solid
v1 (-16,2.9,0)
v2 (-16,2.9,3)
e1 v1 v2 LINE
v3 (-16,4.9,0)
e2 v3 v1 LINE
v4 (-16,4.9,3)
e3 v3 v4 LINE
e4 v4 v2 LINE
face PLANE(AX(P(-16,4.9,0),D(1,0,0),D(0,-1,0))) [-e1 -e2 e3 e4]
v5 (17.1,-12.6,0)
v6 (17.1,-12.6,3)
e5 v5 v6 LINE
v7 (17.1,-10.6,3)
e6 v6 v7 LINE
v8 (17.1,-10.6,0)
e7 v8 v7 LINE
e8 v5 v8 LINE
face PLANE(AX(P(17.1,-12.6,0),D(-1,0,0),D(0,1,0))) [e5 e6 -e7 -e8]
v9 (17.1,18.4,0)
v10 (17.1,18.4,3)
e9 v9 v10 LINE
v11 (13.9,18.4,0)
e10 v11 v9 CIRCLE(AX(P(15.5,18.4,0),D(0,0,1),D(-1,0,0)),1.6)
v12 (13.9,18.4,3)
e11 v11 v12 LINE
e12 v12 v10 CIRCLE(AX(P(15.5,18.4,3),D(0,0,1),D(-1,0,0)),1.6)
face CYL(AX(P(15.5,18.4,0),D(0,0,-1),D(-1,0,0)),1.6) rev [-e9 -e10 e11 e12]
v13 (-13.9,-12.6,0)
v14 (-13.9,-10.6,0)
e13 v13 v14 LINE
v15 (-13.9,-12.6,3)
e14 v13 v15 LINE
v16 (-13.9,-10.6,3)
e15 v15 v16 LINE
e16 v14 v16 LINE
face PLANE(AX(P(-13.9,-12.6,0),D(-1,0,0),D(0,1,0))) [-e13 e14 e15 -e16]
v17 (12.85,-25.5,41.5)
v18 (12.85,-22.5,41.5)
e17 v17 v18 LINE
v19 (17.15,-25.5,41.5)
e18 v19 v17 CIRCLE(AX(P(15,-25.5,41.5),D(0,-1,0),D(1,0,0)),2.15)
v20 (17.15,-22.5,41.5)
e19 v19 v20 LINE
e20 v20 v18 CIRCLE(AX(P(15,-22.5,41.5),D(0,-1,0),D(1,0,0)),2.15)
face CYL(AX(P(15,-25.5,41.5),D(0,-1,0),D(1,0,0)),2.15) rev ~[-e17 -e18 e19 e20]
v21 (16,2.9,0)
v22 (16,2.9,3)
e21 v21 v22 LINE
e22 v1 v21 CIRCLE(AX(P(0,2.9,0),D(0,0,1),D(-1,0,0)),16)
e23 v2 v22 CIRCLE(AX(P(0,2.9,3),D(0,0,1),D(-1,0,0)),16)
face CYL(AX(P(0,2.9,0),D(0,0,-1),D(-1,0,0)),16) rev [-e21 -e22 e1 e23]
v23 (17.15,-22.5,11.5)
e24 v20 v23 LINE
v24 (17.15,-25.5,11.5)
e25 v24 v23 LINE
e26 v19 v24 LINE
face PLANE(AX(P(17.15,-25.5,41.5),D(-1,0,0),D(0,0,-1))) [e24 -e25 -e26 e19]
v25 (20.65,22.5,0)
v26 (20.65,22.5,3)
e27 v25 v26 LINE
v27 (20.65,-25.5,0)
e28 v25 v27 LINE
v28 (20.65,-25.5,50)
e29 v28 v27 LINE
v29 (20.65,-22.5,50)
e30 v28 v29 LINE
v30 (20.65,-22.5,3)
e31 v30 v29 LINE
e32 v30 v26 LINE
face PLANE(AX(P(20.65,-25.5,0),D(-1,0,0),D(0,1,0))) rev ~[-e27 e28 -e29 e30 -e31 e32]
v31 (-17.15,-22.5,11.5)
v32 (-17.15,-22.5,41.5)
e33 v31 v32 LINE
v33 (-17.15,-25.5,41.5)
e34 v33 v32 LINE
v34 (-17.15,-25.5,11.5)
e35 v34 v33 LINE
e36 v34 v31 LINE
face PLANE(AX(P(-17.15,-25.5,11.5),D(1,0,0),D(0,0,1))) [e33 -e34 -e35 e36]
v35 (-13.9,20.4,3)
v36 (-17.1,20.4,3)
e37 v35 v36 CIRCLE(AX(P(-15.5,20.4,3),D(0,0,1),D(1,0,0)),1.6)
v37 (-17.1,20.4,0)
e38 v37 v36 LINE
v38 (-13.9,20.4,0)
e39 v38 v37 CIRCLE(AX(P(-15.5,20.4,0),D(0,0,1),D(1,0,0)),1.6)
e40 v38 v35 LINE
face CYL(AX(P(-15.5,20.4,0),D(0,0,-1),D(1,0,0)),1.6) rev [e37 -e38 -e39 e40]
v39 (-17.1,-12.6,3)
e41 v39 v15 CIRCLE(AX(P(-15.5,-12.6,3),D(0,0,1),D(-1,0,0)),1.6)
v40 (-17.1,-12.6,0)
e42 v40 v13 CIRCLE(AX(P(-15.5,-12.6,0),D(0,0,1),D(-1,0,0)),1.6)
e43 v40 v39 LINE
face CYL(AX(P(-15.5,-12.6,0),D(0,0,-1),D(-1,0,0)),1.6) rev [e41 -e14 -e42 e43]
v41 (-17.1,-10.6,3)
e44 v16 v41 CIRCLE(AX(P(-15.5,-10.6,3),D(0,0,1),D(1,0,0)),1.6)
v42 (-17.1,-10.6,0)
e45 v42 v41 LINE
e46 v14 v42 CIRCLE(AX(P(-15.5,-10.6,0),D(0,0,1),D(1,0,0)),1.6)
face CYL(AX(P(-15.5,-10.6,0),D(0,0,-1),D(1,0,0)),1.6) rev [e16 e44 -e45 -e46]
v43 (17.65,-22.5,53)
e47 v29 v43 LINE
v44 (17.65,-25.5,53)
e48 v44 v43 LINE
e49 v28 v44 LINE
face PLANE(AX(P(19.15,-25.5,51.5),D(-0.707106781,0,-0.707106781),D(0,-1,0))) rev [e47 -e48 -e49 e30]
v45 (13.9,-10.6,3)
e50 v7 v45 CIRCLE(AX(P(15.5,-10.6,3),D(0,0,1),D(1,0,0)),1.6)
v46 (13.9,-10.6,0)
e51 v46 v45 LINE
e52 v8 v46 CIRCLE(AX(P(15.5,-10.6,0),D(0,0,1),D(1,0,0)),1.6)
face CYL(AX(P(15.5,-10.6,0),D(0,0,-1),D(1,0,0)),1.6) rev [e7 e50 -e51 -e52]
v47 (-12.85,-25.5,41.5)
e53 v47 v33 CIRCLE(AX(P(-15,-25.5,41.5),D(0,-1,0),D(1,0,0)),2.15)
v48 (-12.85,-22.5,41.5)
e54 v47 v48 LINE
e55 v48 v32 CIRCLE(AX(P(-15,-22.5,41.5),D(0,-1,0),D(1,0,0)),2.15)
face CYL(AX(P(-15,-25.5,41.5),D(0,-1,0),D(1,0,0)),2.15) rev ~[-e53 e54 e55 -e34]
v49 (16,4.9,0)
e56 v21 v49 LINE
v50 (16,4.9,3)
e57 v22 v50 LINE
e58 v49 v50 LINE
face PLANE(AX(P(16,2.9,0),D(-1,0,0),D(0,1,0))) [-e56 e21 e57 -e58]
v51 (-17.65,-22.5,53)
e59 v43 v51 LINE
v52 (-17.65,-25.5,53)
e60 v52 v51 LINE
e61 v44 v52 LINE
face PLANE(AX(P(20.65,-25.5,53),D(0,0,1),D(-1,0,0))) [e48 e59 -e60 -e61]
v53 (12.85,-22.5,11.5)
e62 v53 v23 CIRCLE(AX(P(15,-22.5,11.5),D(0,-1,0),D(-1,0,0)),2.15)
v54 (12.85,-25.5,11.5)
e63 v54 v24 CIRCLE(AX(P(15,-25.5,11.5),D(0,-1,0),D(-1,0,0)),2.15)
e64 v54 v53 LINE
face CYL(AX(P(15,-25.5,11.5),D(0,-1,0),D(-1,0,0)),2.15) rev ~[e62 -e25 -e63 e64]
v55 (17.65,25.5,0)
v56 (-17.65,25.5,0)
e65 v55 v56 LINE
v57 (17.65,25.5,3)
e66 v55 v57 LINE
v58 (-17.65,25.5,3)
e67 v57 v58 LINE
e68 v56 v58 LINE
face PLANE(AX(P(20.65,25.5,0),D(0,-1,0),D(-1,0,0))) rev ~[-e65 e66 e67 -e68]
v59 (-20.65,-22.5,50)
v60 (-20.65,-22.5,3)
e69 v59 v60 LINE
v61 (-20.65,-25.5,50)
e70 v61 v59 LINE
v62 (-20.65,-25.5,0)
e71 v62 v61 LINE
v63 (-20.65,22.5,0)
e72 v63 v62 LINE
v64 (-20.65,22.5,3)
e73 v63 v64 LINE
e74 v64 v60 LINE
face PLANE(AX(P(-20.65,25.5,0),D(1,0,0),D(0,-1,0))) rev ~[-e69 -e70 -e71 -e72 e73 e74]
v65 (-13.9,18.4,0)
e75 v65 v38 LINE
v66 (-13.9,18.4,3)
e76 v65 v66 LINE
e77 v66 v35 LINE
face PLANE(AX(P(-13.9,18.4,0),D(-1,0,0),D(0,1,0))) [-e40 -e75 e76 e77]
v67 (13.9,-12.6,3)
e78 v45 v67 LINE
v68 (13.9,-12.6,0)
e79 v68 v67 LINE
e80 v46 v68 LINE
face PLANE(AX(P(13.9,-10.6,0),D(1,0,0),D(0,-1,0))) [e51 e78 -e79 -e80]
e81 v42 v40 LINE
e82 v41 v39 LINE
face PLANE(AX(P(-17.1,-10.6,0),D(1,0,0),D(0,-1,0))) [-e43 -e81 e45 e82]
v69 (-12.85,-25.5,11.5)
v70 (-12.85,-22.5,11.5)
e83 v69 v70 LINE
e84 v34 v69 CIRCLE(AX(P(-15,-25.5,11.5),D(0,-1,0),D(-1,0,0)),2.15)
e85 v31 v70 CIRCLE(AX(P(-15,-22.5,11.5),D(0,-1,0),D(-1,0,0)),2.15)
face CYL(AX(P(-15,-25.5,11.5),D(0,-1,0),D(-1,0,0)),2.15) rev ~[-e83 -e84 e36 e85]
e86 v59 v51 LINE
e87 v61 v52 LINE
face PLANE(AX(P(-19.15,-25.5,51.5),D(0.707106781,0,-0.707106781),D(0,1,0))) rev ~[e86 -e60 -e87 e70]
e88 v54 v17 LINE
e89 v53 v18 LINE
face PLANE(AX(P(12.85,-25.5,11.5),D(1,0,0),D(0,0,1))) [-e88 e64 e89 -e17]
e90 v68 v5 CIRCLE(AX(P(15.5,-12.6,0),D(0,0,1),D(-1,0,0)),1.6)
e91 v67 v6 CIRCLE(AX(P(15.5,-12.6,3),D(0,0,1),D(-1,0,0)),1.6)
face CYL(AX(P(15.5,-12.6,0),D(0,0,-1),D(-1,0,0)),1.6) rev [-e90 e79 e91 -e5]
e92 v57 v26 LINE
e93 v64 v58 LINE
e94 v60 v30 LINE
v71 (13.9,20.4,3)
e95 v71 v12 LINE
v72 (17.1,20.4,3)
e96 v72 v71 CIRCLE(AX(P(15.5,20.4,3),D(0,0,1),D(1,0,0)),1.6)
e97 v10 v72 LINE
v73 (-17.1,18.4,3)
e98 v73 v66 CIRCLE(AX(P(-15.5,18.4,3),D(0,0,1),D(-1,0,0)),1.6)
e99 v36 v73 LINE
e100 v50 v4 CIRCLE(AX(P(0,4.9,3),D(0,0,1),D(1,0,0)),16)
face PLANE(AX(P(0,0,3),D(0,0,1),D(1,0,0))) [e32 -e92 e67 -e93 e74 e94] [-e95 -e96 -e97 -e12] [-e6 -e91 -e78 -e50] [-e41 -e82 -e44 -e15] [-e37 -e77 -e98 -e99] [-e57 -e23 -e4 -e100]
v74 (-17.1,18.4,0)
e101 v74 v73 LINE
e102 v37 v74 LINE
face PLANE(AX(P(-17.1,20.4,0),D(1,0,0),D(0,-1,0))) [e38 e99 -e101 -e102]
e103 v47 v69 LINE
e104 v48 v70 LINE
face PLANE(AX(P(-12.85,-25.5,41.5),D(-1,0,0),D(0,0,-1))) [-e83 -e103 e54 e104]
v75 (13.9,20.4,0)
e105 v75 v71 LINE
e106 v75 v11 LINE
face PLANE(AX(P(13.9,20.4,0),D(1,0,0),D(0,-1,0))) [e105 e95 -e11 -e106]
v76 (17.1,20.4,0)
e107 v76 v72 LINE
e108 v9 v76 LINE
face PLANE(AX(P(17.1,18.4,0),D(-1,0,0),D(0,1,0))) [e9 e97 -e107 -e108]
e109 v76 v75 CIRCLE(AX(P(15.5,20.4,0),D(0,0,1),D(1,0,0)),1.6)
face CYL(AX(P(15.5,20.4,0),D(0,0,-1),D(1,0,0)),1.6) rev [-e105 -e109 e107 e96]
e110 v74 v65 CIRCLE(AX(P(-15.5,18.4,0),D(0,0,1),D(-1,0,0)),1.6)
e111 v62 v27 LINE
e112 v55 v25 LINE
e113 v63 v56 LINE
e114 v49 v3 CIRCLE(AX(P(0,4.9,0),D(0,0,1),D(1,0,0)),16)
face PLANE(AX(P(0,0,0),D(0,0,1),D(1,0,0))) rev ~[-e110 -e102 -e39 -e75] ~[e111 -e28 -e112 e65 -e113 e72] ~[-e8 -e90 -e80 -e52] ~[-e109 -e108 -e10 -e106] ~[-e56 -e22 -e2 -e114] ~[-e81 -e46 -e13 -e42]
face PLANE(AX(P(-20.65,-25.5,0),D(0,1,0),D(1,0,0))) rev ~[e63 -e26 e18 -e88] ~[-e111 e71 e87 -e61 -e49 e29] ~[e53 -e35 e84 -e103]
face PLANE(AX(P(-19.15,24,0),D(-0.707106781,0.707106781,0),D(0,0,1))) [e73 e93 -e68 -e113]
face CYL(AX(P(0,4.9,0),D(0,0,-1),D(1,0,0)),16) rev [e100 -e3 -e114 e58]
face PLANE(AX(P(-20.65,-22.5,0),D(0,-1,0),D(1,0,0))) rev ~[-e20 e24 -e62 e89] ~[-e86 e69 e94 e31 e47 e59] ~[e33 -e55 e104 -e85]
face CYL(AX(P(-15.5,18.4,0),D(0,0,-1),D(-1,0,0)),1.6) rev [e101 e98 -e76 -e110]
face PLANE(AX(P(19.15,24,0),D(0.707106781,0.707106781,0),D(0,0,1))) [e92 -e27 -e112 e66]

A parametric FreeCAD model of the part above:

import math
import FreeCAD as App
import Part
import Sketcher
from FreeCAD import Vector
Q = App.Units.Quantity


def edges_at(feature, points):
    """Names of the edges that pass closest to the given points."""
    edges = feature.Shape.Edges
    near = lambda p: min(range(len(edges)), key=lambda i: edges[i].distToShape(Part.Vertex(*p))[0])
    return sorted({f"Edge{near(p) + 1}" for p in points})


def add_polygon(sketch, points):
    """Adds a closed chain of lines whose ends are joined by coincident constraints."""
    first, n = sketch.GeometryCount, len(points)
    for a, b in zip(points, points[1:] + points[:1]):
        sketch.addGeometry(Part.LineSegment(App.Vector(*a, 0), App.Vector(*b, 0)), False)
    for i in range(n):
        sketch.addConstraint(Sketcher.Constraint("Coincident", first + i, 2, first + (i + 1) % n, 1))

doc = App.newDocument("Part")
body = doc.addObject("PartDesign::Body", "Body")

# Sketch on XY plane
sketch1 = body.newObject("Sketcher::SketchObject", "Sketch")
sketch1.AttachmentSupport = (doc.getObject("XY_Plane"), [""])
sketch1.MapMode = "FlatFace"
add_polygon(sketch1, [(-20.65, 25.5), (-20.65, -25.5), (20.65, -25.5), (20.65, 25.5)])  # lines 0-3
sketch1.addGeometry(Part.LineSegment(Vector(-17.1, -12.6, 0), Vector(-17.1, -10.6, 0)), False)  # 4
sketch1.addGeometry(Part.ArcOfCircle(Part.Circle(Vector(-15.5, -10.6, 0), Vector(0, 0, 1), 1.6), math.radians(0), math.radians(180)), False)  # 5
sketch1.addGeometry(Part.LineSegment(Vector(-13.9, -10.6, 0), Vector(-13.9, -12.6, 0)), False)  # 6
sketch1.addGeometry(Part.ArcOfCircle(Part.Circle(Vector(-15.5, -12.6, 0), Vector(0, 0, 1), 1.6), math.radians(180), math.radians(360)), False)  # 7
sketch1.addGeometry(Part.LineSegment(Vector(13.9, -12.6, 0), Vector(13.9, -10.6, 0)), False)  # 8
sketch1.addGeometry(Part.ArcOfCircle(Part.Circle(Vector(15.5, -10.6, 0), Vector(0, 0, 1), 1.6), math.radians(0), math.radians(180)), False)  # 9
sketch1.addGeometry(Part.LineSegment(Vector(17.1, -10.6, 0), Vector(17.1, -12.6, 0)), False)  # 10
sketch1.addGeometry(Part.ArcOfCircle(Part.Circle(Vector(15.5, -12.6, 0), Vector(0, 0, 1), 1.6), math.radians(180), math.radians(360)), False)  # 11
sketch1.addGeometry(Part.LineSegment(Vector(-17.1, 18.4, 0), Vector(-17.1, 20.4, 0)), False)  # 12
sketch1.addGeometry(Part.ArcOfCircle(Part.Circle(Vector(-15.5, 20.4, 0), Vector(0, 0, 1), 1.6), math.radians(0), math.radians(180)), False)  # 13
sketch1.addGeometry(Part.LineSegment(Vector(-13.9, 20.4, 0), Vector(-13.9, 18.4, 0)), False)  # 14
sketch1.addGeometry(Part.ArcOfCircle(Part.Circle(Vector(-15.5, 18.4, 0), Vector(0, 0, 1), 1.6), math.radians(180), math.radians(360)), False)  # 15
sketch1.addGeometry(Part.LineSegment(Vector(16, 4.9, 0), Vector(16, 2.9, 0)), False)  # 16
sketch1.addGeometry(Part.ArcOfCircle(Part.Circle(Vector(0, 2.9, 0), Vector(0, 0, 1), 16), math.radians(180), math.radians(360)), False)  # 17
sketch1.addGeometry(Part.LineSegment(Vector(-16, 2.9, 0), Vector(-16, 4.9, 0)), False)  # 18
sketch1.addGeometry(Part.ArcOfCircle(Part.Circle(Vector(0, 4.9, 0), Vector(0, 0, 1), 16), math.radians(0), math.radians(180)), False)  # 19
sketch1.addGeometry(Part.LineSegment(Vector(13.9, 18.4, 0), Vector(13.9, 20.4, 0)), False)  # 20
sketch1.addGeometry(Part.ArcOfCircle(Part.Circle(Vector(15.5, 20.4, 0), Vector(0, 0, 1), 1.6), math.radians(0), math.radians(180)), False)  # 21
sketch1.addGeometry(Part.LineSegment(Vector(17.1, 20.4, 0), Vector(17.1, 18.4, 0)), False)  # 22
sketch1.addGeometry(Part.ArcOfCircle(Part.Circle(Vector(15.5, 18.4, 0), Vector(0, 0, 1), 1.6), math.radians(180), math.radians(360)), False)  # 23
sketch1.addConstraint([
    Sketcher.Constraint("Tangent", 4, 2, 5, 2),
    Sketcher.Constraint("Tangent", 5, 1, 6, 1),
    Sketcher.Constraint("Tangent", 6, 2, 7, 2),
    Sketcher.Constraint("Tangent", 7, 1, 4, 1),
    Sketcher.Constraint("Tangent", 8, 2, 9, 2),
    Sketcher.Constraint("Tangent", 9, 1, 10, 1),
    Sketcher.Constraint("Tangent", 10, 2, 11, 2),
    Sketcher.Constraint("Tangent", 11, 1, 8, 1),
    Sketcher.Constraint("Tangent", 12, 2, 13, 2),
    Sketcher.Constraint("Tangent", 13, 1, 14, 1),
    Sketcher.Constraint("Tangent", 14, 2, 15, 2),
    Sketcher.Constraint("Tangent", 15, 1, 12, 1),
    Sketcher.Constraint("Tangent", 16, 2, 17, 2),
    Sketcher.Constraint("Tangent", 17, 1, 18, 1),
    Sketcher.Constraint("Tangent", 18, 2, 19, 2),
    Sketcher.Constraint("Tangent", 19, 1, 16, 1),
    Sketcher.Constraint("Tangent", 20, 2, 21, 2),
    Sketcher.Constraint("Tangent", 21, 1, 22, 1),
    Sketcher.Constraint("Tangent", 22, 2, 23, 2),
    Sketcher.Constraint("Tangent", 23, 1, 20, 1),
    Sketcher.Constraint("Vertical", 0),
    Sketcher.Constraint("Horizontal", 1),
    Sketcher.Constraint("Vertical", 2),
    Sketcher.Constraint("Horizontal", 3),
    Sketcher.Constraint("Vertical", 4),
    Sketcher.Constraint("Vertical", 6),
    Sketcher.Constraint("Vertical", 8),
    Sketcher.Constraint("Vertical", 10),
    Sketcher.Constraint("Vertical", 12),
    Sketcher.Constraint("Vertical", 14),
    Sketcher.Constraint("Vertical", 16),
    Sketcher.Constraint("Vertical", 18),
    Sketcher.Constraint("Vertical", 20),
    Sketcher.Constraint("Vertical", 22),
    Sketcher.Constraint("Equal", 7, 9),
    Sketcher.Constraint("Equal", 11, 13),
    Sketcher.Constraint("Equal", 15, 21),
    Sketcher.Constraint("Symmetric", 0, 2, 2, 2, -1, 1),
    Sketcher.Constraint("Symmetric", 5, 3, 9, 3, -2),
    Sketcher.Constraint("Symmetric", 13, 3, 21, 3, -2),
    Sketcher.Constraint("PointOnObject", 17, 3, -2),
    Sketcher.Constraint("Horizontal", 7, 3, 11, 3),
    Sketcher.Constraint("Horizontal", 15, 3, 23, 3),
    Sketcher.Constraint("Vertical", 7, 3, 13, 3),
    Sketcher.Constraint("Equal", 10, 12),
    Sketcher.Constraint("Equal", 14, 16),
    Sketcher.Constraint("Radius", 17, Q("16 mm")),
    Sketcher.Constraint("Radius", 5, Q("1.6 mm")),
    Sketcher.Constraint("DistanceY", 0, 2, 0, 1, Q("51 mm")),
    Sketcher.Constraint("DistanceY", 4, 1, 4, 2, Q("2 mm")),
    Sketcher.Constraint("DistanceX", 1, 1, 1, 2, Q("41.3 mm")),
    Sketcher.Constraint("DistanceX", 5, 3, 9, 3, Q("31 mm")),
    Sketcher.Constraint("DistanceY", 5, 3, 13, 3, Q("31 mm")),
    Sketcher.Constraint("DistanceY", 7, 3, 17, 3, Q("15.5 mm")),
    Sketcher.Constraint("DistanceY", 0, 2, 17, 3, Q("28.4 mm")),
])
pad1 = body.newObject("PartDesign::Pad", "Pad")
pad1.Profile = sketch1
pad1.Length = 3

# Sketch on XZ plane
sketch2 = body.newObject("Sketcher::SketchObject", "Sketch001")
sketch2.AttachmentSupport = (doc.getObject("XZ_Plane"), [""])
sketch2.MapMode = "FlatFace"
sketch2.AttachmentOffset = App.Placement(Vector(0, 0, 25.5), App.Rotation())
add_polygon(sketch2, [(-20.65, 0), (20.65, 0), (20.65, 53), (-20.65, 53)])  # lines 0-3
sketch2.addGeometry(Part.ArcOfCircle(Part.Circle(Vector(-15, 11.5, 0), Vector(0, 0, 1), 2.15), math.radians(180), math.radians(360)), False)  # 4
sketch2.addGeometry(Part.LineSegment(Vector(-17.15, 11.5, 0), Vector(-17.15, 41.5, 0)), False)  # 5
sketch2.addGeometry(Part.ArcOfCircle(Part.Circle(Vector(-15, 41.5, 0), Vector(0, 0, 1), 2.15), math.radians(0), math.radians(180)), False)  # 6
sketch2.addGeometry(Part.LineSegment(Vector(-12.85, 41.5, 0), Vector(-12.85, 11.5, 0)), False)  # 7
sketch2.addGeometry(Part.ArcOfCircle(Part.Circle(Vector(15, 11.5, 0), Vector(0, 0, 1), 2.15), math.radians(180), math.radians(360)), False)  # 8
sketch2.addGeometry(Part.LineSegment(Vector(12.85, 11.5, 0), Vector(12.85, 41.5, 0)), False)  # 9
sketch2.addGeometry(Part.ArcOfCircle(Part.Circle(Vector(15, 41.5, 0), Vector(0, 0, 1), 2.15), math.radians(0), math.radians(180)), False)  # 10
sketch2.addGeometry(Part.LineSegment(Vector(17.15, 41.5, 0), Vector(17.15, 11.5, 0)), False)  # 11
sketch2.addConstraint([
    Sketcher.Constraint("Tangent", 4, 1, 5, 1),
    Sketcher.Constraint("Tangent", 5, 2, 6, 2),
    Sketcher.Constraint("Tangent", 6, 1, 7, 1),
    Sketcher.Constraint("Tangent", 7, 2, 4, 2),
    Sketcher.Constraint("Tangent", 8, 1, 9, 1),
    Sketcher.Constraint("Tangent", 9, 2, 10, 2),
    Sketcher.Constraint("Tangent", 10, 1, 11, 1),
    Sketcher.Constraint("Tangent", 11, 2, 8, 2),
    Sketcher.Constraint("Horizontal", 0),
    Sketcher.Constraint("Vertical", 1),
    Sketcher.Constraint("Horizontal", 2),
    Sketcher.Constraint("Vertical", 3),
    Sketcher.Constraint("Vertical", 5),
    Sketcher.Constraint("Vertical", 7),
    Sketcher.Constraint("Vertical", 9),
    Sketcher.Constraint("Vertical", 11),
    Sketcher.Constraint("Equal", 6, 8),
    Sketcher.Constraint("Symmetric", 0, 2, 3, 2, -1, 1),
    Sketcher.Constraint("Symmetric", 4, 3, 8, 3, -2),
    Sketcher.Constraint("Horizontal", 6, 3, 10, 3),
    Sketcher.Constraint("DistanceY", 1, 1, 1, 2, Q("53 mm")),
    Sketcher.Constraint("DistanceY", 5, 1, 5, 2, Q("30 mm")),
    Sketcher.Constraint("Radius", 4, Q("2.15 mm")),
    Sketcher.Constraint("DistanceX", 4, 3, 8, 3, Q("30 mm")),
    Sketcher.Constraint("DistanceX", 0, 1, 0, 2, Q("41.3 mm")),
    Sketcher.Constraint("DistanceY", -1, 1, 4, 3, Q("11.5 mm")),
])
pad2 = body.newObject("PartDesign::Pad", "Pad001")
pad2.Profile = sketch2
pad2.Length = 3
pad2.Reversed = True
doc.recompute()

chamfer = body.newObject("PartDesign::Chamfer", "Chamfer")
chamfer.Base = (pad2, edges_at(pad2, [
    (20.65, 25.5, 1.5),
    (-20.65, 25.5, 1.5),
    (-20.65, -24, 53),
    (20.65, -24, 53),
]))
chamfer.Size = 3

doc.recompute()
